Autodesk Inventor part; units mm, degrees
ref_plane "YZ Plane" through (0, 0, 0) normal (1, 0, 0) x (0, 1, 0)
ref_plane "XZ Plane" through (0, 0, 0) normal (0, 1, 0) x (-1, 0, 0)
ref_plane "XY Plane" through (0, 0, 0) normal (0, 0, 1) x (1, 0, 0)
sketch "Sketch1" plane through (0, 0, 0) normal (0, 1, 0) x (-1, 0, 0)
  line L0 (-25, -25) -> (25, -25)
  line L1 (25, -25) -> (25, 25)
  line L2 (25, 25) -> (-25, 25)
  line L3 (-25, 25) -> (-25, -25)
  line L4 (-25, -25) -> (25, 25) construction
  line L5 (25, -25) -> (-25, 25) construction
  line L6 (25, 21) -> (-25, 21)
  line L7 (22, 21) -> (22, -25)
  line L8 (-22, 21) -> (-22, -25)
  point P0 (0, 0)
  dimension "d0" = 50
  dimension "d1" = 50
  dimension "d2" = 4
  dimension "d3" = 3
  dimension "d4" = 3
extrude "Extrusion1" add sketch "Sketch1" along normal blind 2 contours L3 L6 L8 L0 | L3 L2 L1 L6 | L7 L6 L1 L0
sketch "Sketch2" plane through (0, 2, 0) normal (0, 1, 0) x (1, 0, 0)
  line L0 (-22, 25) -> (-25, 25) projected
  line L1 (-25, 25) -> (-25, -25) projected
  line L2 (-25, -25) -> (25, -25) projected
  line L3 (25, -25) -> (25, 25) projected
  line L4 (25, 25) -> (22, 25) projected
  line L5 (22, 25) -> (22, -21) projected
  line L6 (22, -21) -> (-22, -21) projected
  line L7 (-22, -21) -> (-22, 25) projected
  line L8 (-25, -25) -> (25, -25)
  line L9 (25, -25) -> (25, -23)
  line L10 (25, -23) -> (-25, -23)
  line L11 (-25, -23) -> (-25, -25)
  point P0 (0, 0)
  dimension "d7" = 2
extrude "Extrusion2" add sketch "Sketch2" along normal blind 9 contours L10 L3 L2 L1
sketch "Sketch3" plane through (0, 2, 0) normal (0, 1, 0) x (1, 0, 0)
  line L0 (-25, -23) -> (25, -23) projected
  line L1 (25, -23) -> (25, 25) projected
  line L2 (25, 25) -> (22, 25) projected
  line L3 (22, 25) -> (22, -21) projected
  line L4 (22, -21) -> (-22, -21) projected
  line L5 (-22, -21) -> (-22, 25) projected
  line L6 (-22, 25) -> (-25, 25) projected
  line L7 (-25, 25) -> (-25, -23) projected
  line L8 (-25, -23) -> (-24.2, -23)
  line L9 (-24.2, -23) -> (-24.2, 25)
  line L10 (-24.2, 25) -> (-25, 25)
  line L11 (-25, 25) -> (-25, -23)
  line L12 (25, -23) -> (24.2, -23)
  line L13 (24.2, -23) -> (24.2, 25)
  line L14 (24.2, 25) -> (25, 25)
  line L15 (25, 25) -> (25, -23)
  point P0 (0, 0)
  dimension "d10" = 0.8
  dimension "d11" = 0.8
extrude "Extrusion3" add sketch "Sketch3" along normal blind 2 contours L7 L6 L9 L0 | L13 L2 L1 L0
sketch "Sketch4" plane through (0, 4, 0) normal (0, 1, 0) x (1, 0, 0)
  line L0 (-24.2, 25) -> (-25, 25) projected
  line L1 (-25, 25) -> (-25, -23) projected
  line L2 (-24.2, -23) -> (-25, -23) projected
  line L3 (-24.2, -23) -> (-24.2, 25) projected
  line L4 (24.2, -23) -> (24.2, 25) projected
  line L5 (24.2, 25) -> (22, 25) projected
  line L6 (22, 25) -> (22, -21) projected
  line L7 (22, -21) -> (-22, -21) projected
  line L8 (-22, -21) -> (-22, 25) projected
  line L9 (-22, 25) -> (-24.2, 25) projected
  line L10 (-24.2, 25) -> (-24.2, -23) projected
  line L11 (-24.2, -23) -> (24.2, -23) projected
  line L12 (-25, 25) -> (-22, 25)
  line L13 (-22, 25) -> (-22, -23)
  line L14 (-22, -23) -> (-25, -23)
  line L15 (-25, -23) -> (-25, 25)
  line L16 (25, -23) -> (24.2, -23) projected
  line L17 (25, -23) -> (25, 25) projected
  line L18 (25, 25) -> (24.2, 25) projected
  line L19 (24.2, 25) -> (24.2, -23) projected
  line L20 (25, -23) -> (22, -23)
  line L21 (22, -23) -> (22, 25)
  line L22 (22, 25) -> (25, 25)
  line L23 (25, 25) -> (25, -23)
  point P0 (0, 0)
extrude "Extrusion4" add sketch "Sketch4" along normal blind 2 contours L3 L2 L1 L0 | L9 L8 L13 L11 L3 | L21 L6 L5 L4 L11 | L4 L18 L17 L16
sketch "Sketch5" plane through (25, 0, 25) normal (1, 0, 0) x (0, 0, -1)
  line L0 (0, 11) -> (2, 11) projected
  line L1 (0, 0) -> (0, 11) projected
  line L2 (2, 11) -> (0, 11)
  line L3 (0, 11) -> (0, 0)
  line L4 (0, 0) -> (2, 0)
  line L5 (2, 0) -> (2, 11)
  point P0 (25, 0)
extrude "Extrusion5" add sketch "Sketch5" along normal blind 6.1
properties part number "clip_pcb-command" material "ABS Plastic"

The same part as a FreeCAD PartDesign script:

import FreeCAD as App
import Part
import Sketcher

V = App.Vector


def add_polygon(sketch, points):
    """Adds a closed chain of lines whose ends are joined by coincident constraints."""
    first, n = sketch.GeometryCount, len(points)
    for a, b in zip(points, points[1:] + points[:1]):
        sketch.addGeometry(Part.LineSegment(App.Vector(*a, 0), App.Vector(*b, 0)), False)
    for i in range(n):
        sketch.addConstraint(Sketcher.Constraint("Coincident", first + i, 2, first + (i + 1) % n, 1))

doc = App.newDocument("Part")
body = doc.addObject("PartDesign::Body", "Body")

# Sketch on XZ plane
sketch1 = body.newObject("Sketcher::SketchObject", "Sketch")
sketch1.AttachmentSupport = (doc.getObject("XZ_Plane"), [""])
sketch1.MapMode = "FlatFace"
add_polygon(sketch1, [(25, -25), (22, -25), (22, 21), (-22, 21), (-22, -25), (-25, -25), (-25, 25), (25, 25)])  # lines 0-7
sketch1.addConstraint([
    Sketcher.Constraint("Horizontal", 0),
    Sketcher.Constraint("Vertical", 1),
    Sketcher.Constraint("Horizontal", 2),
    Sketcher.Constraint("Vertical", 3),
    Sketcher.Constraint("Horizontal", 4),
    Sketcher.Constraint("Vertical", 5),
    Sketcher.Constraint("Horizontal", 6),
    Sketcher.Constraint("Vertical", 7),
    Sketcher.Constraint("Symmetric", 4, 2, 6, 2, -1, 1),
    Sketcher.Constraint("Symmetric", 0, 2, 3, 2, -2),
    Sketcher.Constraint("Equal", 6, 5),
    Sketcher.Constraint("DistanceX", 0, 2, 0, 1, 3.0),
    Sketcher.Constraint("DistanceX", 6, 1, 6, 2, 50.0),
    Sketcher.Constraint("DistanceY", 2, 2, 5, 2, 4.0),
])
pad1 = body.newObject("PartDesign::Pad", "Pad")
pad1.Profile = sketch1
pad1.Length = 2
pad1.Reversed = True

# Sketch on XZ plane
sketch2 = body.newObject("Sketcher::SketchObject", "Sketch001")
sketch2.AttachmentSupport = (doc.getObject("XZ_Plane"), [""])
sketch2.MapMode = "FlatFace"
sketch2.AttachmentOffset = App.Placement(V(0, 0, -2), App.Rotation())
add_polygon(sketch2, [(25, 23), (-25, 23), (-25, 25), (25, 25)])  # lines 0-3
sketch2.addConstraint([
    Sketcher.Constraint("Horizontal", 0),
    Sketcher.Constraint("Vertical", 1),
    Sketcher.Constraint("Horizontal", 2),
    Sketcher.Constraint("Vertical", 3),
    Sketcher.Constraint("DistanceY", 1, 1, 1, 2, 2.0),
    Sketcher.Constraint("DistanceX", 0, 2, 0, 1, 50.0),
    Sketcher.Constraint("DistanceX", 0, 2, -1, 1, 25.0),
    Sketcher.Constraint("DistanceY", -1, 1, 0, 2, 23.0),
])
pad2 = body.newObject("PartDesign::Pad", "Pad001")
pad2.Profile = sketch2
pad2.Length = 9
pad2.Reversed = True

# Sketch on XZ plane
sketch3 = body.newObject("Sketcher::SketchObject", "Sketch002")
sketch3.AttachmentSupport = (doc.getObject("XZ_Plane"), [""])
sketch3.MapMode = "FlatFace"
sketch3.AttachmentOffset = App.Placement(V(0, 0, -2), App.Rotation())
add_polygon(sketch3, [(-25, -25), (-25, 23), (-24.2, 23), (-24.2, -25)])  # lines 0-3
add_polygon(sketch3, [(24.2, -25), (24.2, 23), (25, 23), (25, -25)])  # lines 4-7
sketch3.addConstraint([
    Sketcher.Constraint("Vertical", 0),
    Sketcher.Constraint("Horizontal", 1),
    Sketcher.Constraint("Vertical", 2),
    Sketcher.Constraint("Horizontal", 3),
    Sketcher.Constraint("Vertical", 4),
    Sketcher.Constraint("Horizontal", 5),
    Sketcher.Constraint("Vertical", 6),
    Sketcher.Constraint("Horizontal", 7),
    Sketcher.Constraint("Symmetric", 1, 2, 4, 2, -2),
    Sketcher.Constraint("Symmetric", 3, 2, 6, 2, -2),
    Sketcher.Constraint("DistanceX", 1, 1, 1, 2, 0.8),
    Sketcher.Constraint("DistanceY", 0, 1, 0, 2, 48.0),
    Sketcher.Constraint("DistanceX", 0, 2, -1, 1, 25.0),
    Sketcher.Constraint("DistanceY", -1, 1, 0, 2, 23.0),
])
pad3 = body.newObject("PartDesign::Pad", "Pad002")
pad3.Profile = sketch3
pad3.Length = 2
pad3.Reversed = True

# Sketch on XZ plane
sketch4 = body.newObject("Sketcher::SketchObject", "Sketch003")
sketch4.AttachmentSupport = (doc.getObject("XZ_Plane"), [""])
sketch4.MapMode = "FlatFace"
sketch4.AttachmentOffset = App.Placement(V(0, 0, -4), App.Rotation())
add_polygon(sketch4, [(-25, 23), (-22, 23), (-22, -25), (-25, -25)])  # lines 0-3
add_polygon(sketch4, [(22, 23), (25, 23), (25, -25), (22, -25)])  # lines 4-7
sketch4.addConstraint([
    Sketcher.Constraint("Horizontal", 0),
    Sketcher.Constraint("Vertical", 1),
    Sketcher.Constraint("Horizontal", 2),
    Sketcher.Constraint("Vertical", 3),
    Sketcher.Constraint("Horizontal", 4),
    Sketcher.Constraint("Vertical", 5),
    Sketcher.Constraint("Horizontal", 6),
    Sketcher.Constraint("Vertical", 7),
    Sketcher.Constraint("Symmetric", 3, 2, 4, 2, -2),
    Sketcher.Constraint("Symmetric", 1, 2, 6, 2, -2),
    Sketcher.Constraint("DistanceX", 0, 1, 0, 2, 3.0),
    Sketcher.Constraint("DistanceY", 1, 2, 1, 1, 48.0),
    Sketcher.Constraint("DistanceX", 0, 2, -1, 1, 22.0),
    Sketcher.Constraint("DistanceY", -1, 1, 0, 2, 23.0),
])
pad4 = body.newObject("PartDesign::Pad", "Pad003")
pad4.Profile = sketch4
pad4.Length = 2
pad4.Reversed = True

# Sketch on YZ plane
sketch5 = body.newObject("Sketcher::SketchObject", "Sketch004")
sketch5.AttachmentSupport = (doc.getObject("YZ_Plane"), [""])
sketch5.MapMode = "FlatFace"
sketch5.AttachmentOffset = App.Placement(V(0, 0, 25), App.Rotation())
add_polygon(sketch5, [(11, 23), (11, 25), (0, 25), (0, 23)])  # lines 0-3
sketch5.addConstraint([
    Sketcher.Constraint("Vertical", 0),
    Sketcher.Constraint("Horizontal", 1),
    Sketcher.Constraint("Vertical", 2),
    Sketcher.Constraint("Horizontal", 3),
    Sketcher.Constraint("PointOnObject", 1, 2, -2),
    Sketcher.Constraint("DistanceX", 1, 2, 1, 1, 11.0),
    Sketcher.Constraint("DistanceY", 0, 1, 0, 2, 2.0),
    Sketcher.Constraint("DistanceY", -1, 1, 0, 2, 25.0),
])
pad5 = body.newObject("PartDesign::Pad", "Pad004")
pad5.Profile = sketch5
pad5.Length = 6.1

doc.recompute()
